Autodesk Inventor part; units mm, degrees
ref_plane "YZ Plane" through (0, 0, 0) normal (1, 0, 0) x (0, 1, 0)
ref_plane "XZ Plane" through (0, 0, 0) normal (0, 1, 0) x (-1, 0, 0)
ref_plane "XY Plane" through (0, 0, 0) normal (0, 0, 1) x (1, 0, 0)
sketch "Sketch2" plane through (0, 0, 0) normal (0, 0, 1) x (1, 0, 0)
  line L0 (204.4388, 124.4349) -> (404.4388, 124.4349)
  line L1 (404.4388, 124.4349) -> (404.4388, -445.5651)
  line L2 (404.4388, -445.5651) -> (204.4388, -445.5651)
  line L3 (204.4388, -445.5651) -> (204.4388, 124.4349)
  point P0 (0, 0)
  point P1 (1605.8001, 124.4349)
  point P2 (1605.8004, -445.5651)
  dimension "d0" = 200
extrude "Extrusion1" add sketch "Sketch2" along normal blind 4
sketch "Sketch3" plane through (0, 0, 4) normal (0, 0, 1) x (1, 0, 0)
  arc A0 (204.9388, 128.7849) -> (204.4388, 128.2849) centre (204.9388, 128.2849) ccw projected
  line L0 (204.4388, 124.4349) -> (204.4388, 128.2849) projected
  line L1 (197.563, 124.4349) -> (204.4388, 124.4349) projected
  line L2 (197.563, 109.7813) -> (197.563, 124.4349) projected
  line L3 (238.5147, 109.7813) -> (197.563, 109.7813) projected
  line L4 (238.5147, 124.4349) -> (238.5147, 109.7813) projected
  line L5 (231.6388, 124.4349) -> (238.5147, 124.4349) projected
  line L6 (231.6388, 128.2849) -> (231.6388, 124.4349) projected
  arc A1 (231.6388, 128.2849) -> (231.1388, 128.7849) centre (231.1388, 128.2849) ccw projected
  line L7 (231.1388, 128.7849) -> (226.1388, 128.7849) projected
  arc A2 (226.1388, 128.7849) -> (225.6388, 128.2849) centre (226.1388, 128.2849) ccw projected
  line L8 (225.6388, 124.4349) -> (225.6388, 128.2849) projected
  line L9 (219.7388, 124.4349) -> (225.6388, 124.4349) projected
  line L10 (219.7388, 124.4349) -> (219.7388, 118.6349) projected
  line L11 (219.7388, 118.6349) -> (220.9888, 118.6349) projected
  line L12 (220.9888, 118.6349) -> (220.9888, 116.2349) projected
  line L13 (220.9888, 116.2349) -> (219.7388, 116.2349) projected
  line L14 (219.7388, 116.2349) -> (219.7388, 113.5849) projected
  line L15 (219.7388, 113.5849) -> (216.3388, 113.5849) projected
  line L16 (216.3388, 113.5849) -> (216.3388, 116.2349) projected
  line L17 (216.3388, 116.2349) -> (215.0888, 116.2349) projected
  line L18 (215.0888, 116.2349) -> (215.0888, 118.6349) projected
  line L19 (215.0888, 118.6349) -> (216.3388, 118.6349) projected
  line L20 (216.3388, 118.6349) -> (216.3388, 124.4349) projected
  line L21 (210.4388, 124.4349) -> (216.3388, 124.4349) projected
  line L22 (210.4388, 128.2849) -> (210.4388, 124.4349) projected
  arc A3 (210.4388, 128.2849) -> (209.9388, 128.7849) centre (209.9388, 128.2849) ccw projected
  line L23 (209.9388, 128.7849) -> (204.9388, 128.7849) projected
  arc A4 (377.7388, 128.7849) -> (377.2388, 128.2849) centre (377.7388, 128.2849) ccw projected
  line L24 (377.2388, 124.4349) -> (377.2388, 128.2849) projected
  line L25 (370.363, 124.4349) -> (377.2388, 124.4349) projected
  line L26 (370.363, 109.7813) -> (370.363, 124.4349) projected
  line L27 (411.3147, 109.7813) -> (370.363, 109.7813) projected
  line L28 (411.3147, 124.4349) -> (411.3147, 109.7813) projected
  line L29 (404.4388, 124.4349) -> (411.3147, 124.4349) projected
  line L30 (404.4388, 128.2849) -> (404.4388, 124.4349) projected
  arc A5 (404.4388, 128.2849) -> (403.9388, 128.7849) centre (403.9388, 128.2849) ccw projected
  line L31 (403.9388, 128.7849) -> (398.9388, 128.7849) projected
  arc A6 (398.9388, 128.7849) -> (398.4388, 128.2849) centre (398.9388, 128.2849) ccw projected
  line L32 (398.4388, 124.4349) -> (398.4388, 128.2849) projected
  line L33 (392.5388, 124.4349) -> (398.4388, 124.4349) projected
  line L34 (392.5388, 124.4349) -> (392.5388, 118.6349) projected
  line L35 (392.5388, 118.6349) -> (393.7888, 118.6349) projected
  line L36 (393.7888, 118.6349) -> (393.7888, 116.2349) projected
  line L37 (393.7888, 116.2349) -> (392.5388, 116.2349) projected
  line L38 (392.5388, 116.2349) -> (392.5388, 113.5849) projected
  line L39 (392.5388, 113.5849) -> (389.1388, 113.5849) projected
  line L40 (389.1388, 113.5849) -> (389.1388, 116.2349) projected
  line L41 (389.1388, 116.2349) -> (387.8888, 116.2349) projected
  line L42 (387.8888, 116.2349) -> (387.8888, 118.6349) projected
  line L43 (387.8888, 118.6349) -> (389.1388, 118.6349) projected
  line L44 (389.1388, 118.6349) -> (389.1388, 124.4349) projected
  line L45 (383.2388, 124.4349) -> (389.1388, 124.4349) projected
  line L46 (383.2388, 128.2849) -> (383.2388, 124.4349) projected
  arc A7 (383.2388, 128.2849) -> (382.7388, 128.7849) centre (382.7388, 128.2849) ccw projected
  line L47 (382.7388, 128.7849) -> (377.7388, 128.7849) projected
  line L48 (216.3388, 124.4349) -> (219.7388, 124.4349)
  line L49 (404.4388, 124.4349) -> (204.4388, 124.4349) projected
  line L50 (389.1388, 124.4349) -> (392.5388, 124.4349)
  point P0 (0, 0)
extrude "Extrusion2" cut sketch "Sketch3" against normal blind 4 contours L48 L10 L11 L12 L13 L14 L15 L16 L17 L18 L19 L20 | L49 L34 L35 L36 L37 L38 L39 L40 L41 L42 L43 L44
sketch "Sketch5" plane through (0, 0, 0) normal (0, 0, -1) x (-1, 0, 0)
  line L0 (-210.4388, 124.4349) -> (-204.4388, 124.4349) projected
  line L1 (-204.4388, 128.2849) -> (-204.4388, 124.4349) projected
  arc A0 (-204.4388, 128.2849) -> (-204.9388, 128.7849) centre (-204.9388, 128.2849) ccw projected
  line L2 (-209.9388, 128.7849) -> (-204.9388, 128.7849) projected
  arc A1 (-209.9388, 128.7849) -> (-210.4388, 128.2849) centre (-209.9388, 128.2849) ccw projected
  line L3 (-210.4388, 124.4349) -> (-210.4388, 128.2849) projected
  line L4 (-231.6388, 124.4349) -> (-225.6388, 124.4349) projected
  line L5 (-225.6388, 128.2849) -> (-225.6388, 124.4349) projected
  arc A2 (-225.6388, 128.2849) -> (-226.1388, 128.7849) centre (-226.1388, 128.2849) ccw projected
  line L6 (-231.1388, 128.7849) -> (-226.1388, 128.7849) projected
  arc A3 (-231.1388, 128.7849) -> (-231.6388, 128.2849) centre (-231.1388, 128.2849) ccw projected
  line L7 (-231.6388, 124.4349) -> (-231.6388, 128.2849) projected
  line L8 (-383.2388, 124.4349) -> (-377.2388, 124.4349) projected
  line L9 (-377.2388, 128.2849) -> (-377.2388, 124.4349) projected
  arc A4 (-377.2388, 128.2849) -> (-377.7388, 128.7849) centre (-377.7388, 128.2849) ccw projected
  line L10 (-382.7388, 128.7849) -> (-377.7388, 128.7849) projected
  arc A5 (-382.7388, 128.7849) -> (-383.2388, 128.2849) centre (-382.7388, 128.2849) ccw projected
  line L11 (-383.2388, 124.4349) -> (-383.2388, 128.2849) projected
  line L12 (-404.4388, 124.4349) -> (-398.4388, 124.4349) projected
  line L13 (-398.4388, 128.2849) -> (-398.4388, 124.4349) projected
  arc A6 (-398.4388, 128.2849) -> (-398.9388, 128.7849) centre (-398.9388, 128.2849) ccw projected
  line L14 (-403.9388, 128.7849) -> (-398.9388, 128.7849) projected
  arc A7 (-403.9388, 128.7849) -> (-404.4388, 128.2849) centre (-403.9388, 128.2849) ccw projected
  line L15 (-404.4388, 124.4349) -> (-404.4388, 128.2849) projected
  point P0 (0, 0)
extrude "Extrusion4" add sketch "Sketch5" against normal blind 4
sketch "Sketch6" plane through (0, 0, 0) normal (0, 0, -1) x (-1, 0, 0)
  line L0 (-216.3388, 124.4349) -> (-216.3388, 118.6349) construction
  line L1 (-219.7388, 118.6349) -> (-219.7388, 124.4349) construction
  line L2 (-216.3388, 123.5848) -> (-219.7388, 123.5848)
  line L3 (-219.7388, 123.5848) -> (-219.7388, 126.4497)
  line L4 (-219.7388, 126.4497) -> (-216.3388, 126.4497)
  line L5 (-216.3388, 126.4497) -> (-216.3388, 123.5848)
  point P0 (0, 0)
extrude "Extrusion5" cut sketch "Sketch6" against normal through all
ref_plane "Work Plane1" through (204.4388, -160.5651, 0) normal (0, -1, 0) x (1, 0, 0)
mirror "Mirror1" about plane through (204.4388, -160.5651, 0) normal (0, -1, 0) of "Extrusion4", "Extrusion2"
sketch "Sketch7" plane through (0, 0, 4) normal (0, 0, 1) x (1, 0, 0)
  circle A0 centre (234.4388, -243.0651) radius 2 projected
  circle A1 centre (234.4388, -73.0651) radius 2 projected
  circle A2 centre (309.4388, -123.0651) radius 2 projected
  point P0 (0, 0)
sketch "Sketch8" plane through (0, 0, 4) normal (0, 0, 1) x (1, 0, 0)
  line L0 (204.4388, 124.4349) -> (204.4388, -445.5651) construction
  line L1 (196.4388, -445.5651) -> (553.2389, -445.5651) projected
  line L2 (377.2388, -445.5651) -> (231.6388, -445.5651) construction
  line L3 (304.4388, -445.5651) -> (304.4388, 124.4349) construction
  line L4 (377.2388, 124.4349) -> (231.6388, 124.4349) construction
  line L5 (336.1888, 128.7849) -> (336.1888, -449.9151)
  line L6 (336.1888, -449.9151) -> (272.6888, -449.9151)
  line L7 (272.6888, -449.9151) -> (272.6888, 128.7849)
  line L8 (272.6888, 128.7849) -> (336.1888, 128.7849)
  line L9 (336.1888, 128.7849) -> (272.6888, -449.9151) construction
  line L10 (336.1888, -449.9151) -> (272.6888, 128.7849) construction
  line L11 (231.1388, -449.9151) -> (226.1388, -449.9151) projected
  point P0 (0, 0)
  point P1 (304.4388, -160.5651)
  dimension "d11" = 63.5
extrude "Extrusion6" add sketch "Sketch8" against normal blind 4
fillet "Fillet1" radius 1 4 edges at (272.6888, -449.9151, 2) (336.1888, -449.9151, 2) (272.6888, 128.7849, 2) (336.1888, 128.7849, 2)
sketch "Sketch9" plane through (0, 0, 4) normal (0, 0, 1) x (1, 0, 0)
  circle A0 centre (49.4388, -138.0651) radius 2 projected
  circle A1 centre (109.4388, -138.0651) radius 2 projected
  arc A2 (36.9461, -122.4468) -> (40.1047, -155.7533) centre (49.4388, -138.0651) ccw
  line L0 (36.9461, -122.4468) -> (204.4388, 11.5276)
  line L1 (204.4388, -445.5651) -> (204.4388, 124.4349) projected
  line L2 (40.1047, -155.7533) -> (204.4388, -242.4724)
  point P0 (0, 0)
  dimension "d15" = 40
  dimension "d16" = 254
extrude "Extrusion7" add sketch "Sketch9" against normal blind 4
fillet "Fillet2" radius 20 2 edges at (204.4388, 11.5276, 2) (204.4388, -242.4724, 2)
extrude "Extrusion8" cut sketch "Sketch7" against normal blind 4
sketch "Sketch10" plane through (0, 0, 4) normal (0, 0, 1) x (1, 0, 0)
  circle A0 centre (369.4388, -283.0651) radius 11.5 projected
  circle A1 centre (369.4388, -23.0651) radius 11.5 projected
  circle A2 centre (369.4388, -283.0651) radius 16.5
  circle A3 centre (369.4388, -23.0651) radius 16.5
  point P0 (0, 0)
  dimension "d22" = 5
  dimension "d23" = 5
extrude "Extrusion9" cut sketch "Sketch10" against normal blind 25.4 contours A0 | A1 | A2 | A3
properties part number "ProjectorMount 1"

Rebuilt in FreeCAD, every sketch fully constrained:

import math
import FreeCAD as App
import Part
import Sketcher

V = App.Vector
Q = App.Units.Quantity


def edges_at(feature, points):
    """Names of the edges that pass closest to the given points."""
    edges = feature.Shape.Edges
    near = lambda p: min(range(len(edges)), key=lambda i: edges[i].distToShape(Part.Vertex(*p))[0])
    return sorted({f"Edge{near(p) + 1}" for p in points})

doc = App.newDocument("Part")
params = doc.addObject("Spreadsheet::Sheet", "Params")
for row, (alias, value) in enumerate([
    ("sketch1_width", "200 mm"),
    ("sketch1_height", "570 mm"),
    ("pad1_length", "4 mm"),
    ("sketch2_width", "3.4 mm"),
    ("sketch2_height", "5.8 mm"),
    ("sketch2_height2", "2.4 mm"),
    ("sketch2_width2", "1.25 mm"),
    ("sketch2_height3", "2.65 mm"),
    ("pocket1_length", "4 mm"),
    ("sketch3_radius", "0.5 mm"),
    ("sketch3_width", "6 mm"),
    ("sketch3_height", "3.85 mm"),
    ("pad2_length", "4 mm"),
    ("sketch4_width", "3.4 mm"),
    ("sketch5_width", "63.5 mm"),
    ("sketch5_height", "578.7 mm"),
    ("pad3_length", "4 mm"),
    ("fillet_radius", "1 mm"),
    ("sketch6_radius", "20 mm"),
    ("sketch6_height", "254 mm"),
    ("sketch6_diameter", "4 mm"),
    ("pad4_length", "4 mm"),
    ("fillet2_radius", "20 mm"),
    ("sketch7_diameter", "4 mm"),
    ("pocket3_length", "4 mm"),
    ("sketch8_diameter", "33 mm"),
    ("pocket4_length", "25.4 mm"),
], start=1):
    params.set(f"A{row}", alias)
    params.set(f"B{row}", "=" + value)
    params.setAlias(f"B{row}", alias)

body = doc.addObject("PartDesign::Body", "Body")

# Sketch on XY plane
sketch1 = doc.addObject("Sketcher::SketchObject", "Sketch")
body.addObject(sketch1)
sketch1.AttachmentSupport = (doc.XY_Plane, [""])
sketch1.MapMode = "FlatFace"
sketch1.addGeometry(Part.LineSegment(V(404, 124, 0), V(204, 124, 0)), False)
sketch1.addGeometry(Part.LineSegment(V(204, 124, 0), V(204, -446, 0)), False)
sketch1.addGeometry(Part.LineSegment(V(204, -446, 0), V(404, -446, 0)), False)
sketch1.addGeometry(Part.LineSegment(V(404, -446, 0), V(404, 124, 0)), False)
sketch1.addConstraint(Sketcher.Constraint("Coincident", 0, 2, 1, 1))
sketch1.addConstraint(Sketcher.Constraint("Coincident", 1, 2, 2, 1))
sketch1.addConstraint(Sketcher.Constraint("Coincident", 2, 2, 3, 1))
sketch1.addConstraint(Sketcher.Constraint("Coincident", 3, 2, 0, 1))
sketch1.addConstraint(Sketcher.Constraint("Horizontal", 0))
sketch1.addConstraint(Sketcher.Constraint("Vertical", 1))
sketch1.addConstraint(Sketcher.Constraint("Horizontal", 2))
sketch1.addConstraint(Sketcher.Constraint("Vertical", 3))
sketch1.addConstraint(Sketcher.Constraint("DistanceX", 0, 2, 0, 1, Q("200 mm")))
sketch1.addConstraint(Sketcher.Constraint("DistanceY", 1, 2, 1, 1, Q("570 mm")))
sketch1.addConstraint(Sketcher.Constraint("DistanceY", -1, 1, 0, 2, Q("124.435 mm")))
sketch1.addConstraint(Sketcher.Constraint("DistanceX", -1, 1, 0, 2, Q("204.4388 mm")))
sketch1.setExpression("Constraints[8]", "Params.sketch1_width")
sketch1.setExpression("Constraints[9]", "Params.sketch1_height")
pad1 = doc.addObject("PartDesign::Pad", "Pad")
body.addObject(pad1)
pad1.Profile = sketch1
pad1.setExpression("Length", "Params.pad1_length")

# Sketch on XY plane
sketch2 = doc.addObject("Sketcher::SketchObject", "Sketch001")
body.addObject(sketch2)
sketch2.AttachmentSupport = (doc.XY_Plane, [""])
sketch2.MapMode = "FlatFace"
sketch2.AttachmentOffset = App.Placement(V(0, 0, 4), App.Rotation())
sketch2.addGeometry(Part.LineSegment(V(219.7, 124.4, 0), V(216.3, 124.4, 0)), False)
sketch2.addGeometry(Part.LineSegment(V(216.3, 124.4, 0), V(216.3, 118.6, 0)), False)
sketch2.addGeometry(Part.LineSegment(V(216.3, 118.6, 0), V(215.1, 118.6, 0)), False)
sketch2.addGeometry(Part.LineSegment(V(215.1, 118.6, 0), V(215.1, 116.2, 0)), False)
sketch2.addGeometry(Part.LineSegment(V(215.1, 116.2, 0), V(216.3, 116.2, 0)), False)
sketch2.addGeometry(Part.LineSegment(V(216.3, 116.2, 0), V(216.3, 113.6, 0)), False)
sketch2.addGeometry(Part.LineSegment(V(216.3, 113.6, 0), V(219.7, 113.6, 0)), False)
sketch2.addGeometry(Part.LineSegment(V(219.7, 113.6, 0), V(219.7, 116.2, 0)), False)
sketch2.addGeometry(Part.LineSegment(V(219.7, 116.2, 0), V(221, 116.2, 0)), False)
sketch2.addGeometry(Part.LineSegment(V(221, 116.2, 0), V(221, 118.6, 0)), False)
sketch2.addGeometry(Part.LineSegment(V(221, 118.6, 0), V(219.7, 118.6, 0)), False)
sketch2.addGeometry(Part.LineSegment(V(219.7, 118.6, 0), V(219.7, 124.4, 0)), False)
sketch2.addGeometry(Part.LineSegment(V(392.5, 124.4, 0), V(389.1, 124.4, 0)), False)
sketch2.addGeometry(Part.LineSegment(V(389.1, 124.4, 0), V(389.1, 118.6, 0)), False)
sketch2.addGeometry(Part.LineSegment(V(389.1, 118.6, 0), V(387.9, 118.6, 0)), False)
sketch2.addGeometry(Part.LineSegment(V(387.9, 118.6, 0), V(387.9, 116.2, 0)), False)
sketch2.addGeometry(Part.LineSegment(V(387.9, 116.2, 0), V(389.1, 116.2, 0)), False)
sketch2.addGeometry(Part.LineSegment(V(389.1, 116.2, 0), V(389.1, 113.6, 0)), False)
sketch2.addGeometry(Part.LineSegment(V(389.1, 113.6, 0), V(392.5, 113.6, 0)), False)
sketch2.addGeometry(Part.LineSegment(V(392.5, 113.6, 0), V(392.5, 116.2, 0)), False)
sketch2.addGeometry(Part.LineSegment(V(392.5, 116.2, 0), V(393.8, 116.2, 0)), False)
sketch2.addGeometry(Part.LineSegment(V(393.8, 116.2, 0), V(393.8, 118.6, 0)), False)
sketch2.addGeometry(Part.LineSegment(V(393.8, 118.6, 0), V(392.5, 118.6, 0)), False)
sketch2.addGeometry(Part.LineSegment(V(392.5, 118.6, 0), V(392.5, 124.4, 0)), False)
sketch2.addConstraint(Sketcher.Constraint("Coincident", 0, 2, 1, 1))
sketch2.addConstraint(Sketcher.Constraint("Coincident", 1, 2, 2, 1))
sketch2.addConstraint(Sketcher.Constraint("Coincident", 2, 2, 3, 1))
sketch2.addConstraint(Sketcher.Constraint("Coincident", 3, 2, 4, 1))
sketch2.addConstraint(Sketcher.Constraint("Coincident", 4, 2, 5, 1))
sketch2.addConstraint(Sketcher.Constraint("Coincident", 5, 2, 6, 1))
sketch2.addConstraint(Sketcher.Constraint("Coincident", 6, 2, 7, 1))
sketch2.addConstraint(Sketcher.Constraint("Coincident", 7, 2, 8, 1))
sketch2.addConstraint(Sketcher.Constraint("Coincident", 8, 2, 9, 1))
sketch2.addConstraint(Sketcher.Constraint("Coincident", 9, 2, 10, 1))
sketch2.addConstraint(Sketcher.Constraint("Coincident", 10, 2, 11, 1))
sketch2.addConstraint(Sketcher.Constraint("Coincident", 11, 2, 0, 1))
sketch2.addConstraint(Sketcher.Constraint("Coincident", 12, 2, 13, 1))
sketch2.addConstraint(Sketcher.Constraint("Coincident", 13, 2, 14, 1))
sketch2.addConstraint(Sketcher.Constraint("Coincident", 14, 2, 15, 1))
sketch2.addConstraint(Sketcher.Constraint("Coincident", 15, 2, 16, 1))
sketch2.addConstraint(Sketcher.Constraint("Coincident", 16, 2, 17, 1))
sketch2.addConstraint(Sketcher.Constraint("Coincident", 17, 2, 18, 1))
sketch2.addConstraint(Sketcher.Constraint("Coincident", 18, 2, 19, 1))
sketch2.addConstraint(Sketcher.Constraint("Coincident", 19, 2, 20, 1))
sketch2.addConstraint(Sketcher.Constraint("Coincident", 20, 2, 21, 1))
sketch2.addConstraint(Sketcher.Constraint("Coincident", 21, 2, 22, 1))
sketch2.addConstraint(Sketcher.Constraint("Coincident", 22, 2, 23, 1))
sketch2.addConstraint(Sketcher.Constraint("Coincident", 23, 2, 12, 1))
sketch2.addConstraint(Sketcher.Constraint("Horizontal", 0))
sketch2.addConstraint(Sketcher.Constraint("Vertical", 1))
sketch2.addConstraint(Sketcher.Constraint("Horizontal", 2))
sketch2.addConstraint(Sketcher.Constraint("Vertical", 3))
sketch2.addConstraint(Sketcher.Constraint("Horizontal", 4))
sketch2.addConstraint(Sketcher.Constraint("Vertical", 5))
sketch2.addConstraint(Sketcher.Constraint("Horizontal", 6))
sketch2.addConstraint(Sketcher.Constraint("Vertical", 7))
sketch2.addConstraint(Sketcher.Constraint("Horizontal", 8))
sketch2.addConstraint(Sketcher.Constraint("Vertical", 9))
sketch2.addConstraint(Sketcher.Constraint("Horizontal", 10))
sketch2.addConstraint(Sketcher.Constraint("Vertical", 11))
sketch2.addConstraint(Sketcher.Constraint("Horizontal", 12))
sketch2.addConstraint(Sketcher.Constraint("Vertical", 13))
sketch2.addConstraint(Sketcher.Constraint("Horizontal", 14))
sketch2.addConstraint(Sketcher.Constraint("Vertical", 15))
sketch2.addConstraint(Sketcher.Constraint("Horizontal", 16))
sketch2.addConstraint(Sketcher.Constraint("Vertical", 17))
sketch2.addConstraint(Sketcher.Constraint("Horizontal", 18))
sketch2.addConstraint(Sketcher.Constraint("Vertical", 19))
sketch2.addConstraint(Sketcher.Constraint("Horizontal", 20))
sketch2.addConstraint(Sketcher.Constraint("Vertical", 21))
sketch2.addConstraint(Sketcher.Constraint("Horizontal", 22))
sketch2.addConstraint(Sketcher.Constraint("Vertical", 23))
sketch2.addConstraint(Sketcher.Constraint("Horizontal", 4, 2, 7, 2))
sketch2.addConstraint(Sketcher.Constraint("Horizontal", 2, 2, 9, 2))
sketch2.addConstraint(Sketcher.Constraint("Horizontal", 11, 2, 12, 2))
sketch2.addConstraint(Sketcher.Constraint("Horizontal", 10, 2, 13, 2))
sketch2.addConstraint(Sketcher.Constraint("Horizontal", 8, 2, 15, 2))
sketch2.addConstraint(Sketcher.Constraint("Horizontal", 6, 2, 17, 2))
sketch2.addConstraint(Sketcher.Constraint("Horizontal", 16, 2, 19, 2))
sketch2.addConstraint(Sketcher.Constraint("Horizontal", 14, 2, 21, 2))
sketch2.addConstraint(Sketcher.Constraint("Vertical", 1, 2, 4, 2))
sketch2.addConstraint(Sketcher.Constraint("Vertical", 7, 2, 10, 2))
sketch2.addConstraint(Sketcher.Constraint("Vertical", 13, 2, 16, 2))
sketch2.addConstraint(Sketcher.Constraint("Vertical", 19, 2, 22, 2))
sketch2.addConstraint(Sketcher.Constraint("Equal", 4, 8))
sketch2.addConstraint(Sketcher.Constraint("Equal", 6, 12))
sketch2.addConstraint(Sketcher.Constraint("Equal", 10, 14))
sketch2.addConstraint(Sketcher.Constraint("Equal", 16, 20))
sketch2.addConstraint(Sketcher.Constraint("DistanceX", 0, 2, 0, 1, Q("3.4 mm")))
sketch2.addConstraint(Sketcher.Constraint("DistanceY", 1, 2, 1, 1, Q("5.8 mm")))
sketch2.addConstraint(Sketcher.Constraint("DistanceY", 3, 2, 3, 1, Q("2.4 mm")))
sketch2.addConstraint(Sketcher.Constraint("DistanceX", 2, 2, 2, 1, Q("1.25 mm")))
sketch2.addConstraint(Sketcher.Constraint("DistanceY", 5, 2, 5, 1, Q("2.65 mm")))
sketch2.addConstraint(Sketcher.Constraint("DistanceX", 11, 2, 12, 2, Q("169.4 mm")))
sketch2.addConstraint(Sketcher.Constraint("DistanceY", -1, 1, 0, 2, Q("124.435 mm")))
sketch2.addConstraint(Sketcher.Constraint("DistanceX", -1, 1, 0, 2, Q("216.3388 mm")))
sketch2.setExpression("Constraints[64]", "Params.sketch2_width")
sketch2.setExpression("Constraints[65]", "Params.sketch2_height")
sketch2.setExpression("Constraints[66]", "Params.sketch2_height2")
sketch2.setExpression("Constraints[67]", "Params.sketch2_width2")
sketch2.setExpression("Constraints[68]", "Params.sketch2_height3")
pocket1 = doc.addObject("PartDesign::Pocket", "Pocket")
body.addObject(pocket1)
pocket1.Profile = sketch2
pocket1.setExpression("Length", "Params.pocket1_length")

# Sketch on XY plane
sketch3 = doc.addObject("Sketcher::SketchObject", "Sketch002")
body.addObject(sketch3)
sketch3.AttachmentSupport = (doc.XY_Plane, [""])
sketch3.MapMode = "FlatFace"
sketch3.addGeometry(Part.LineSegment(V(210.4, 128.3, 0), V(210.4, 124.4, 0)), False)
sketch3.addGeometry(Part.LineSegment(V(210.4, 124.4, 0), V(204.4, 124.4, 0)), False)
sketch3.addGeometry(Part.LineSegment(V(204.4, 124.4, 0), V(204.4, 128.3, 0)), False)
sketch3.addGeometry(Part.ArcOfCircle(Part.Circle(V(204.9, 128.3, 0), V(0, 0, 1), 0.5), math.radians(90), math.radians(180)), False)
sketch3.addGeometry(Part.LineSegment(V(204.9, 128.8, 0), V(209.9, 128.8, 0)), False)
sketch3.addGeometry(Part.ArcOfCircle(Part.Circle(V(209.9, 128.3, 0), V(0, 0, 1), 0.5), math.radians(0), math.radians(90)), False)
sketch3.addGeometry(Part.LineSegment(V(231.6, 128.3, 0), V(231.6, 124.4, 0)), False)
sketch3.addGeometry(Part.LineSegment(V(231.6, 124.4, 0), V(225.6, 124.4, 0)), False)
sketch3.addGeometry(Part.LineSegment(V(225.6, 124.4, 0), V(225.6, 128.3, 0)), False)
sketch3.addGeometry(Part.ArcOfCircle(Part.Circle(V(226.1, 128.3, 0), V(0, 0, 1), 0.5), math.radians(90), math.radians(180)), False)
sketch3.addGeometry(Part.LineSegment(V(226.1, 128.8, 0), V(231.1, 128.8, 0)), False)
sketch3.addGeometry(Part.ArcOfCircle(Part.Circle(V(231.1, 128.3, 0), V(0, 0, 1), 0.5), math.radians(0), math.radians(90)), False)
sketch3.addGeometry(Part.LineSegment(V(383.2, 128.3, 0), V(383.2, 124.4, 0)), False)
sketch3.addGeometry(Part.LineSegment(V(383.2, 124.4, 0), V(377.2, 124.4, 0)), False)
sketch3.addGeometry(Part.LineSegment(V(377.2, 124.4, 0), V(377.2, 128.3, 0)), False)
sketch3.addGeometry(Part.ArcOfCircle(Part.Circle(V(377.7, 128.3, 0), V(0, 0, 1), 0.5), math.radians(90), math.radians(180)), False)
sketch3.addGeometry(Part.LineSegment(V(377.7, 128.8, 0), V(382.7, 128.8, 0)), False)
sketch3.addGeometry(Part.ArcOfCircle(Part.Circle(V(382.7, 128.3, 0), V(0, 0, 1), 0.5), math.radians(0), math.radians(90)), False)
sketch3.addGeometry(Part.LineSegment(V(404.4, 128.3, 0), V(404.4, 124.4, 0)), False)
sketch3.addGeometry(Part.LineSegment(V(404.4, 124.4, 0), V(398.4, 124.4, 0)), False)
sketch3.addGeometry(Part.LineSegment(V(398.4, 124.4, 0), V(398.4, 128.3, 0)), False)
sketch3.addGeometry(Part.ArcOfCircle(Part.Circle(V(398.9, 128.3, 0), V(0, 0, 1), 0.5), math.radians(90), math.radians(180)), False)
sketch3.addGeometry(Part.LineSegment(V(398.9, 128.8, 0), V(403.9, 128.8, 0)), False)
sketch3.addGeometry(Part.ArcOfCircle(Part.Circle(V(403.9, 128.3, 0), V(0, 0, 1), 0.5), math.radians(0), math.radians(90)), False)
sketch3.addConstraint(Sketcher.Constraint("Coincident", 0, 2, 1, 1))
sketch3.addConstraint(Sketcher.Constraint("Coincident", 1, 2, 2, 1))
sketch3.addConstraint(Sketcher.Constraint("Tangent", 2, 2, 3, 2))
sketch3.addConstraint(Sketcher.Constraint("Tangent", 3, 1, 4, 1))
sketch3.addConstraint(Sketcher.Constraint("Tangent", 4, 2, 5, 2))
sketch3.addConstraint(Sketcher.Constraint("Tangent", 5, 1, 0, 1))
sketch3.addConstraint(Sketcher.Constraint("Coincident", 6, 2, 7, 1))
sketch3.addConstraint(Sketcher.Constraint("Coincident", 7, 2, 8, 1))
sketch3.addConstraint(Sketcher.Constraint("Tangent", 8, 2, 9, 2))
sketch3.addConstraint(Sketcher.Constraint("Tangent", 9, 1, 10, 1))
sketch3.addConstraint(Sketcher.Constraint("Tangent", 10, 2, 11, 2))
sketch3.addConstraint(Sketcher.Constraint("Tangent", 11, 1, 6, 1))
sketch3.addConstraint(Sketcher.Constraint("Coincident", 12, 2, 13, 1))
sketch3.addConstraint(Sketcher.Constraint("Coincident", 13, 2, 14, 1))
sketch3.addConstraint(Sketcher.Constraint("Tangent", 14, 2, 15, 2))
sketch3.addConstraint(Sketcher.Constraint("Tangent", 15, 1, 16, 1))
sketch3.addConstraint(Sketcher.Constraint("Tangent", 16, 2, 17, 2))
sketch3.addConstraint(Sketcher.Constraint("Tangent", 17, 1, 12, 1))
sketch3.addConstraint(Sketcher.Constraint("Coincident", 18, 2, 19, 1))
sketch3.addConstraint(Sketcher.Constraint("Coincident", 19, 2, 20, 1))
sketch3.addConstraint(Sketcher.Constraint("Tangent", 20, 2, 21, 2))
sketch3.addConstraint(Sketcher.Constraint("Tangent", 21, 1, 22, 1))
sketch3.addConstraint(Sketcher.Constraint("Tangent", 22, 2, 23, 2))
sketch3.addConstraint(Sketcher.Constraint("Tangent", 23, 1, 18, 1))
sketch3.addConstraint(Sketcher.Constraint("Vertical", 0))
sketch3.addConstraint(Sketcher.Constraint("Horizontal", 1))
sketch3.addConstraint(Sketcher.Constraint("Vertical", 2))
sketch3.addConstraint(Sketcher.Constraint("Horizontal", 4))
sketch3.addConstraint(Sketcher.Constraint("Vertical", 6))
sketch3.addConstraint(Sketcher.Constraint("Horizontal", 7))
sketch3.addConstraint(Sketcher.Constraint("Vertical", 8))
sketch3.addConstraint(Sketcher.Constraint("Horizontal", 10))
sketch3.addConstraint(Sketcher.Constraint("Vertical", 12))
sketch3.addConstraint(Sketcher.Constraint("Horizontal", 13))
sketch3.addConstraint(Sketcher.Constraint("Vertical", 14))
sketch3.addConstraint(Sketcher.Constraint("Horizontal", 16))
sketch3.addConstraint(Sketcher.Constraint("Vertical", 18))
sketch3.addConstraint(Sketcher.Constraint("Horizontal", 19))
sketch3.addConstraint(Sketcher.Constraint("Vertical", 20))
sketch3.addConstraint(Sketcher.Constraint("Horizontal", 22))
sketch3.addConstraint(Sketcher.Constraint("Equal", 3, 5))
sketch3.addConstraint(Sketcher.Constraint("Equal", 5, 9))
sketch3.addConstraint(Sketcher.Constraint("Equal", 9, 11))
sketch3.addConstraint(Sketcher.Constraint("Equal", 11, 15))
sketch3.addConstraint(Sketcher.Constraint("Equal", 15, 17))
sketch3.addConstraint(Sketcher.Constraint("Equal", 17, 21))
sketch3.addConstraint(Sketcher.Constraint("Equal", 21, 23))
sketch3.addConstraint(Sketcher.Constraint("Horizontal", 5, 3, 9, 3))
sketch3.addConstraint(Sketcher.Constraint("Horizontal", 11, 3, 15, 3))
sketch3.addConstraint(Sketcher.Constraint("Horizontal", 17, 3, 21, 3))
sketch3.addConstraint(Sketcher.Constraint("Horizontal", 1, 2, 6, 2))
sketch3.addConstraint(Sketcher.Constraint("Horizontal", 7, 2, 12, 2))
sketch3.addConstraint(Sketcher.Constraint("Horizontal", 13, 2, 18, 2))
sketch3.addConstraint(Sketcher.Constraint("Equal", 1, 7))
sketch3.addConstraint(Sketcher.Constraint("Equal", 7, 13))
sketch3.addConstraint(Sketcher.Constraint("Equal", 13, 19))
sketch3.addConstraint(Sketcher.Constraint("Radius", 3, Q("0.5 mm")))
sketch3.addConstraint(Sketcher.Constraint("DistanceX", 1, 2, 1, 1, Q("6 mm")))
sketch3.addConstraint(Sketcher.Constraint("DistanceX", 5, 3, 21, 3, Q("189 mm")))
sketch3.addConstraint(Sketcher.Constraint("DistanceY", 0, 2, 0, 1, Q("3.85 mm")))
sketch3.addConstraint(Sketcher.Constraint("DistanceX", 5, 3, 9, 3, Q("16.2 mm")))
sketch3.addConstraint(Sketcher.Constraint("DistanceX", 11, 3, 15, 3, Q("146.6 mm")))
sketch3.addConstraint(Sketcher.Constraint("DistanceY", -1, 1, 3, 3, Q("128.285 mm")))
sketch3.addConstraint(Sketcher.Constraint("DistanceX", -1, 1, 3, 3, Q("204.9388 mm")))
sketch3.setExpression("Constraints[56]", "Params.sketch3_radius")
sketch3.setExpression("Constraints[57]", "Params.sketch3_width")
sketch3.setExpression("Constraints[59]", "Params.sketch3_height")
pad2 = doc.addObject("PartDesign::Pad", "Pad001")
body.addObject(pad2)
pad2.Profile = sketch3
pad2.setExpression("Length", "Params.pad2_length")

# Sketch on XY plane
sketch4 = doc.addObject("Sketcher::SketchObject", "Sketch003")
body.addObject(sketch4)
sketch4.AttachmentSupport = (doc.XY_Plane, [""])
sketch4.MapMode = "FlatFace"
sketch4.addGeometry(Part.LineSegment(V(219.7, 123.6, 0), V(216.3, 123.6, 0)), False)
sketch4.addGeometry(Part.LineSegment(V(216.3, 123.6, 0), V(216.3, 126.4, 0)), False)
sketch4.addGeometry(Part.LineSegment(V(216.3, 126.4, 0), V(219.7, 126.4, 0)), False)
sketch4.addGeometry(Part.LineSegment(V(219.7, 126.4, 0), V(219.7, 123.6, 0)), False)
sketch4.addConstraint(Sketcher.Constraint("Coincident", 0, 2, 1, 1))
sketch4.addConstraint(Sketcher.Constraint("Coincident", 1, 2, 2, 1))
sketch4.addConstraint(Sketcher.Constraint("Coincident", 2, 2, 3, 1))
sketch4.addConstraint(Sketcher.Constraint("Coincident", 3, 2, 0, 1))
sketch4.addConstraint(Sketcher.Constraint("Horizontal", 0))
sketch4.addConstraint(Sketcher.Constraint("Vertical", 1))
sketch4.addConstraint(Sketcher.Constraint("Horizontal", 2))
sketch4.addConstraint(Sketcher.Constraint("Vertical", 3))
sketch4.addConstraint(Sketcher.Constraint("DistanceX", 0, 2, 0, 1, Q("3.4 mm")))
sketch4.addConstraint(Sketcher.Constraint("DistanceY", 1, 1, 1, 2, Q("2.865 mm")))
sketch4.addConstraint(Sketcher.Constraint("DistanceX", -1, 1, 0, 2, Q("216.3388 mm")))
sketch4.addConstraint(Sketcher.Constraint("DistanceY", -1, 1, 0, 2, Q("123.5848 mm")))
sketch4.setExpression("Constraints[8]", "Params.sketch4_width")
pocket2 = doc.addObject("PartDesign::Pocket", "Pocket001")
body.addObject(pocket2)
pocket2.Profile = sketch4
pocket2.Type = "ThroughAll"
pocket2.Reversed = True
doc.recompute()

datumplane = doc.addObject("PartDesign::Plane", "DatumPlane")
body.addObject(datumplane)
datumplane.AttachmentSupport = (doc.XZ_Plane, [""])
datumplane.MapMode = "FlatFace"
datumplane.AttachmentOffset = App.Placement(V(0, 0, 160.5651), App.Rotation())
mirrored = doc.addObject("PartDesign::Mirrored", "Mirrored")
body.addObject(mirrored)
mirrored.Originals = [pad2, pocket1]
mirrored.MirrorPlane = (datumplane, [""])
body.Tip = mirrored

# Sketch on XY plane
sketch5 = doc.addObject("Sketcher::SketchObject", "Sketch004")
body.addObject(sketch5)
sketch5.AttachmentSupport = (doc.XY_Plane, [""])
sketch5.MapMode = "FlatFace"
sketch5.AttachmentOffset = App.Placement(V(0, 0, 4), App.Rotation())
sketch5.addGeometry(Part.LineSegment(V(273, 129, 0), V(273, -450, 0)), False)
sketch5.addGeometry(Part.LineSegment(V(273, -450, 0), V(336, -450, 0)), False)
sketch5.addGeometry(Part.LineSegment(V(336, -450, 0), V(336, 129, 0)), False)
sketch5.addGeometry(Part.LineSegment(V(336, 129, 0), V(273, 129, 0)), False)
sketch5.addConstraint(Sketcher.Constraint("Coincident", 0, 2, 1, 1))
sketch5.addConstraint(Sketcher.Constraint("Coincident", 1, 2, 2, 1))
sketch5.addConstraint(Sketcher.Constraint("Coincident", 2, 2, 3, 1))
sketch5.addConstraint(Sketcher.Constraint("Coincident", 3, 2, 0, 1))
sketch5.addConstraint(Sketcher.Constraint("Vertical", 0))
sketch5.addConstraint(Sketcher.Constraint("Horizontal", 1))
sketch5.addConstraint(Sketcher.Constraint("Vertical", 2))
sketch5.addConstraint(Sketcher.Constraint("Horizontal", 3))
sketch5.addConstraint(Sketcher.Constraint("DistanceX", 1, 1, 1, 2, Q("63.5 mm")))
sketch5.addConstraint(Sketcher.Constraint("DistanceY", 0, 2, 0, 1, Q("578.7 mm")))
sketch5.addConstraint(Sketcher.Constraint("DistanceY", 0, 2, -1, 1, Q("449.915 mm")))
sketch5.addConstraint(Sketcher.Constraint("DistanceX", -1, 1, 0, 2, Q("272.6888 mm")))
sketch5.setExpression("Constraints[8]", "Params.sketch5_width")
sketch5.setExpression("Constraints[9]", "Params.sketch5_height")
pad3 = doc.addObject("PartDesign::Pad", "Pad002")
body.addObject(pad3)
pad3.Profile = sketch5
pad3.setExpression("Length", "Params.pad3_length")
pad3.Reversed = True
doc.recompute()

fillet = doc.addObject("PartDesign::Fillet", "Fillet")
body.addObject(fillet)
fillet.Base = (pad3, edges_at(pad3, [
    (272.689, -449.915, 2),
    (336.189, -449.915, 2),
    (272.689, 128.785, 2),
    (336.189, 128.785, 2),
]))
fillet.setExpression("Radius", "Params.fillet_radius")

# Sketch on XY plane
sketch6 = doc.addObject("Sketcher::SketchObject", "Sketch005")
body.addObject(sketch6)
sketch6.AttachmentSupport = (doc.XY_Plane, [""])
sketch6.MapMode = "FlatFace"
sketch6.AttachmentOffset = App.Placement(V(0, 0, 4), App.Rotation())
sketch6.addGeometry(Part.LineSegment(V(204.4, 11.5, 0), V(36.9, -122.4, 0)), False)
sketch6.addGeometry(Part.ArcOfCircle(Part.Circle(V(49.4, -138.1, 0), V(0, 0, 1), 20), math.radians(129), math.radians(242)), False)
sketch6.addGeometry(Part.LineSegment(V(40.1, -155.8, 0), V(204.4, -242.5, 0)), False)
sketch6.addGeometry(Part.LineSegment(V(204.4, -242.5, 0), V(204.4, 11.5, 0)), False)
sketch6.addGeometry(Part.Circle(V(49.4, -138.1, 0), V(0, 0, 1), 2), False)
sketch6.addGeometry(Part.Circle(V(109.4, -138.1, 0), V(0, 0, 1), 2), False)
sketch6.addConstraint(Sketcher.Constraint("Tangent", 0, 2, 1, 1))
sketch6.addConstraint(Sketcher.Constraint("Tangent", 1, 2, 2, 1))
sketch6.addConstraint(Sketcher.Constraint("Coincident", 2, 2, 3, 1))
sketch6.addConstraint(Sketcher.Constraint("Coincident", 3, 2, 0, 1))
sketch6.addConstraint(Sketcher.Constraint("Vertical", 3))
sketch6.addConstraint(Sketcher.Constraint("Coincident", 4, 3, 1, 3))
sketch6.addConstraint(Sketcher.Constraint("Equal", 4, 5))
sketch6.addConstraint(Sketcher.Constraint("Horizontal", 4, 3, 5, 3))
sketch6.addConstraint(Sketcher.Constraint("Radius", 1, Q("20 mm")))
sketch6.addConstraint(Sketcher.Constraint("DistanceY", 3, 1, 3, 2, Q("254 mm")))
sketch6.addConstraint(Sketcher.Constraint("Diameter", 4, Q("4 mm")))
sketch6.addConstraint(Sketcher.Constraint("DistanceX", 1, 3, 5, 3, Q("60 mm")))
sketch6.addConstraint(Sketcher.Constraint("DistanceX", 5, 3, 2, 2, Q("95 mm")))
sketch6.addConstraint(Sketcher.Constraint("Angle", 2, Q("-27.8206 deg")))
sketch6.addConstraint(Sketcher.Constraint("DistanceY", 1, 3, -1, 1, Q("138.065 mm")))
sketch6.addConstraint(Sketcher.Constraint("DistanceX", -1, 1, 0, 2, Q("36.946 mm")))
sketch6.setExpression("Constraints[8]", "Params.sketch6_radius")
sketch6.setExpression("Constraints[9]", "Params.sketch6_height")
sketch6.setExpression("Constraints[10]", "Params.sketch6_diameter")
pad4 = doc.addObject("PartDesign::Pad", "Pad003")
body.addObject(pad4)
pad4.Profile = sketch6
pad4.setExpression("Length", "Params.pad4_length")
pad4.Reversed = True
doc.recompute()

fillet2 = doc.addObject("PartDesign::Fillet", "Fillet001")
body.addObject(fillet2)
fillet2.Base = (pad4, edges_at(pad4, [(204.439, 11.528, 2), (204.439, -242.472, 2)]))
fillet2.setExpression("Radius", "Params.fillet2_radius")

# Sketch on XY plane
sketch7 = doc.addObject("Sketcher::SketchObject", "Sketch006")
body.addObject(sketch7)
sketch7.AttachmentSupport = (doc.XY_Plane, [""])
sketch7.MapMode = "FlatFace"
sketch7.AttachmentOffset = App.Placement(V(0, 0, 4), App.Rotation())
sketch7.addGeometry(Part.Circle(V(234.4, -243.1, 0), V(0, 0, 1), 2), False)
sketch7.addGeometry(Part.Circle(V(234.4, -73.1, 0), V(0, 0, 1), 2), False)
sketch7.addGeometry(Part.Circle(V(309.4, -123.1, 0), V(0, 0, 1), 2), False)
sketch7.addConstraint(Sketcher.Constraint("Equal", 0, 1))
sketch7.addConstraint(Sketcher.Constraint("Equal", 1, 2))
sketch7.addConstraint(Sketcher.Constraint("Vertical", 0, 3, 1, 3))
sketch7.addConstraint(Sketcher.Constraint("Diameter", 0, Q("4 mm")))
sketch7.addConstraint(Sketcher.Constraint("DistanceY", 0, 3, 1, 3, Q("170 mm")))
sketch7.addConstraint(Sketcher.Constraint("DistanceX", 1, 3, 2, 3, Q("75 mm")))
sketch7.addConstraint(Sketcher.Constraint("DistanceY", 2, 3, 1, 3, Q("50 mm")))
sketch7.addConstraint(Sketcher.Constraint("DistanceY", 0, 3, -1, 1, Q("243.065 mm")))
sketch7.addConstraint(Sketcher.Constraint("DistanceX", -1, 1, 0, 3, Q("234.4388 mm")))
sketch7.setExpression("Constraints[3]", "Params.sketch7_diameter")
pocket3 = doc.addObject("PartDesign::Pocket", "Pocket002")
body.addObject(pocket3)
pocket3.Profile = sketch7
pocket3.setExpression("Length", "Params.pocket3_length")

# Sketch on XY plane
sketch8 = doc.addObject("Sketcher::SketchObject", "Sketch007")
body.addObject(sketch8)
sketch8.AttachmentSupport = (doc.XY_Plane, [""])
sketch8.MapMode = "FlatFace"
sketch8.AttachmentOffset = App.Placement(V(0, 0, 4), App.Rotation())
sketch8.addGeometry(Part.Circle(V(369, -283, 0), V(0, 0, 1), 16), False)
sketch8.addGeometry(Part.Circle(V(369, -23, 0), V(0, 0, 1), 16), False)
sketch8.addConstraint(Sketcher.Constraint("Equal", 0, 1))
sketch8.addConstraint(Sketcher.Constraint("Vertical", 0, 3, 1, 3))
sketch8.addConstraint(Sketcher.Constraint("Diameter", 0, Q("33 mm")))
sketch8.addConstraint(Sketcher.Constraint("DistanceY", 0, 3, 1, 3, Q("260 mm")))
sketch8.addConstraint(Sketcher.Constraint("DistanceY", 0, 3, -1, 1, Q("283.065 mm")))
sketch8.addConstraint(Sketcher.Constraint("DistanceX", -1, 1, 0, 3, Q("369.4388 mm")))
sketch8.setExpression("Constraints[2]", "Params.sketch8_diameter")
pocket4 = doc.addObject("PartDesign::Pocket", "Pocket003")
body.addObject(pocket4)
pocket4.Profile = sketch8
pocket4.setExpression("Length", "Params.pocket4_length")

doc.recompute()
